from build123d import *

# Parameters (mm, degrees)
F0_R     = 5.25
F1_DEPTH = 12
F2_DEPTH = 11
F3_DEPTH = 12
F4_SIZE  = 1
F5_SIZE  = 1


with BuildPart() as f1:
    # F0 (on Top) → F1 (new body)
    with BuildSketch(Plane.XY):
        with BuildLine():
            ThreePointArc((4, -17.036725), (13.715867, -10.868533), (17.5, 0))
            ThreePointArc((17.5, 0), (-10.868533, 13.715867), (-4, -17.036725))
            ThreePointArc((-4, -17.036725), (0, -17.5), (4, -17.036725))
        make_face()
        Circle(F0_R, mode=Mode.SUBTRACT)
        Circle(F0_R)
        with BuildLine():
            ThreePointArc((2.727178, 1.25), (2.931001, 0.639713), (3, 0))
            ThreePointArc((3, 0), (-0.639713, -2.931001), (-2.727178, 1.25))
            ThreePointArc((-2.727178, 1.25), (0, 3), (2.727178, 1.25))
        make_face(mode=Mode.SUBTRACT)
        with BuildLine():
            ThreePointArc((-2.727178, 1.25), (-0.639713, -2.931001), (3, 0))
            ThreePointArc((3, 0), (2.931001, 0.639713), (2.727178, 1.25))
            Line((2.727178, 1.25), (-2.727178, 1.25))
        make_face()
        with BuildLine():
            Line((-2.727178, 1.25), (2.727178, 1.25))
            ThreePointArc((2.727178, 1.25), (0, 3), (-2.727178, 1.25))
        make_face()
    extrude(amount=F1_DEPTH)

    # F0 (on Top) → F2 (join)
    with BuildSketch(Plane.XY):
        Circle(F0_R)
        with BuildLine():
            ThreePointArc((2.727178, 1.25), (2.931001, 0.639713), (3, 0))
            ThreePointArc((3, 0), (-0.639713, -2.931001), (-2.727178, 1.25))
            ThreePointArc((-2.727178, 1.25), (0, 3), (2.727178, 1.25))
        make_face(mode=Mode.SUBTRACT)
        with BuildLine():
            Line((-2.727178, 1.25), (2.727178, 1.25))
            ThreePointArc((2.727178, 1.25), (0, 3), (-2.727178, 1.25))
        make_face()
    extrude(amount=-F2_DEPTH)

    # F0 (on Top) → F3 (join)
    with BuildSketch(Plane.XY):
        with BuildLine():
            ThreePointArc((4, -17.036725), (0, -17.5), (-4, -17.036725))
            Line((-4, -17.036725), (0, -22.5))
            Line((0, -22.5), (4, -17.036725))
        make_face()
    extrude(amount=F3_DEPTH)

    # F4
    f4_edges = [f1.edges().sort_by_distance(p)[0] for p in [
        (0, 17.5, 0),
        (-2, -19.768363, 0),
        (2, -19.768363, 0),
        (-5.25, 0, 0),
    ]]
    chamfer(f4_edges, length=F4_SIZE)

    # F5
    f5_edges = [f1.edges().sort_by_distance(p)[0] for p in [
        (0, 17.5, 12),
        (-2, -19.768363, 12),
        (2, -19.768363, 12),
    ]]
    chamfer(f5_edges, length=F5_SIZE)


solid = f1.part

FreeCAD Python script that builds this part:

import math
import FreeCAD as App
import Part
import Sketcher
from FreeCAD import Vector
Q = App.Units.Quantity


def edges_at(feature, points):
    """Names of the edges that pass closest to the given points."""
    edges = feature.Shape.Edges
    near = lambda p: min(range(len(edges)), key=lambda i: edges[i].distToShape(Part.Vertex(*p))[0])
    return sorted({f"Edge{near(p) + 1}" for p in points})

doc = App.newDocument("Part")
body = doc.addObject("PartDesign::Body", "Body")

sketch1 = doc.addObject("Sketcher::SketchObject", "Sketch")
body.addObject(sketch1)
sketch1.AttachmentSupport = (doc.XY_Plane, [""])
sketch1.MapMode = "FlatFace"
sketch1.addGeometry([
    Part.ArcOfCircle(Part.Circle(Vector(0, 0, 0), Vector(0, 0, 1), 17), math.radians(-77), math.radians(0)),
    Part.ArcOfCircle(Part.Circle(Vector(0, 0, 0), Vector(0, 0, 1), 18), math.radians(0), math.radians(257)),
    Part.ArcOfCircle(Part.Circle(Vector(0, 0, 0), Vector(0, 0, 1), 17), math.radians(-103), math.radians(-77)),
], False)
sketch1.addConstraint([
    Sketcher.Constraint("Tangent", 0, 2, 1, 1),
    Sketcher.Constraint("Tangent", 1, 2, 2, 1),
    Sketcher.Constraint("Tangent", 2, 2, 0, 1),
    Sketcher.Constraint("Coincident", 0, 3, -1, 1),
    Sketcher.Constraint("PointOnObject", 0, 2, -1),
    Sketcher.Constraint("Horizontal", 1, 2, 2, 2),
    Sketcher.Constraint("Radius", 0, Q("17.499998 mm")),
    Sketcher.Constraint("DistanceX", 1, 2, -1, 1, Q("4 mm")),
])
pad1 = doc.addObject("PartDesign::Pad", "Pad")
body.addObject(pad1)
pad1.Profile = sketch1
pad1.Length = 12

sketch2 = doc.addObject("Sketcher::SketchObject", "Sketch001")
body.addObject(sketch2)
sketch2.AttachmentSupport = (doc.XY_Plane, [""])
sketch2.MapMode = "FlatFace"
sketch2.addGeometry([
    Part.Circle(Vector(0, 0, 0), Vector(0, 0, 1), 5.2),
    Part.ArcOfCircle(Part.Circle(Vector(0, 0, 0), Vector(0, 0, 1), 3), math.radians(155), math.radians(360)),
    Part.LineSegment(Vector(-2.7, 1.2, 0), Vector(2.7, 1.2, 0)),
    Part.ArcOfCircle(Part.Circle(Vector(0, 0, 0), Vector(0, 0, 1), 3), math.radians(0), math.radians(25)),
], False)
sketch2.addConstraint([
    Sketcher.Constraint("Coincident", 1, 1, 2, 1),
    Sketcher.Constraint("Coincident", 2, 2, 3, 2),
    Sketcher.Constraint("Tangent", 3, 1, 1, 2),
    Sketcher.Constraint("Horizontal", 2),
    Sketcher.Constraint("Coincident", 0, 3, -1, 1),
    Sketcher.Constraint("Coincident", 1, 3, -1, 1),
    Sketcher.Constraint("PointOnObject", 3, 1, -1),
    Sketcher.Constraint("Radius", 1, Q("3 mm")),
    Sketcher.Constraint("Diameter", 0, Q("10.5 mm")),
    Sketcher.Constraint("DistanceY", -1, 1, 1, 1, Q("1.25 mm")),
    Sketcher.Constraint("Radius", 3, Q("3.000002 mm")),
])
pad2 = doc.addObject("PartDesign::Pad", "Pad001")
body.addObject(pad2)
pad2.Profile = sketch2
pad2.Length = 11
pad2.Reversed = True

sketch3 = doc.addObject("Sketcher::SketchObject", "Sketch002")
body.addObject(sketch3)
sketch3.AttachmentSupport = (doc.XY_Plane, [""])
sketch3.MapMode = "FlatFace"
sketch3.addGeometry([
    Part.ArcOfCircle(Part.Circle(Vector(0, 0, 0), Vector(0, 0, 1), 17), math.radians(-103), math.radians(-77)),
    Part.LineSegment(Vector(-4, -17, 0), Vector(0, -22, 0)),
    Part.LineSegment(Vector(0, -22, 0), Vector(4, -17, 0)),
], False)
sketch3.addConstraint([
    Sketcher.Constraint("Coincident", 0, 1, 1, 1),
    Sketcher.Constraint("Coincident", 1, 2, 2, 1),
    Sketcher.Constraint("Coincident", 2, 2, 0, 2),
    Sketcher.Constraint("Coincident", 0, 3, -1, 1),
    Sketcher.Constraint("PointOnObject", 1, 2, -2),
    Sketcher.Constraint("Horizontal", 0, 1, 2, 2),
    Sketcher.Constraint("Radius", 0, Q("17.499999 mm")),
    Sketcher.Constraint("DistanceX", 0, 1, -1, 1, Q("4 mm")),
    Sketcher.Constraint("DistanceY", 1, 2, -1, 1, Q("22.5 mm")),
])
pad3 = doc.addObject("PartDesign::Pad", "Pad002")
body.addObject(pad3)
pad3.Profile = sketch3
pad3.Length = 12
doc.recompute()

chamfer = doc.addObject("PartDesign::Chamfer", "Chamfer")
body.addObject(chamfer)
chamfer.Base = (pad3, edges_at(pad3, [
    (-10.869, 13.716, 0),
    (-2, -19.768, 0),
    (2, -19.768, 0),
    (-5.25, 0, 0),
]))
chamfer.Size = 1
doc.recompute()

chamfer2 = doc.addObject("PartDesign::Chamfer", "Chamfer001")
body.addObject(chamfer2)
chamfer2.Base = (chamfer, edges_at(chamfer, [(-10.869, 13.716, 12), (-2, -19.768, 12), (2, -19.768, 12)]))
chamfer2.Size = 1

doc.recompute()
